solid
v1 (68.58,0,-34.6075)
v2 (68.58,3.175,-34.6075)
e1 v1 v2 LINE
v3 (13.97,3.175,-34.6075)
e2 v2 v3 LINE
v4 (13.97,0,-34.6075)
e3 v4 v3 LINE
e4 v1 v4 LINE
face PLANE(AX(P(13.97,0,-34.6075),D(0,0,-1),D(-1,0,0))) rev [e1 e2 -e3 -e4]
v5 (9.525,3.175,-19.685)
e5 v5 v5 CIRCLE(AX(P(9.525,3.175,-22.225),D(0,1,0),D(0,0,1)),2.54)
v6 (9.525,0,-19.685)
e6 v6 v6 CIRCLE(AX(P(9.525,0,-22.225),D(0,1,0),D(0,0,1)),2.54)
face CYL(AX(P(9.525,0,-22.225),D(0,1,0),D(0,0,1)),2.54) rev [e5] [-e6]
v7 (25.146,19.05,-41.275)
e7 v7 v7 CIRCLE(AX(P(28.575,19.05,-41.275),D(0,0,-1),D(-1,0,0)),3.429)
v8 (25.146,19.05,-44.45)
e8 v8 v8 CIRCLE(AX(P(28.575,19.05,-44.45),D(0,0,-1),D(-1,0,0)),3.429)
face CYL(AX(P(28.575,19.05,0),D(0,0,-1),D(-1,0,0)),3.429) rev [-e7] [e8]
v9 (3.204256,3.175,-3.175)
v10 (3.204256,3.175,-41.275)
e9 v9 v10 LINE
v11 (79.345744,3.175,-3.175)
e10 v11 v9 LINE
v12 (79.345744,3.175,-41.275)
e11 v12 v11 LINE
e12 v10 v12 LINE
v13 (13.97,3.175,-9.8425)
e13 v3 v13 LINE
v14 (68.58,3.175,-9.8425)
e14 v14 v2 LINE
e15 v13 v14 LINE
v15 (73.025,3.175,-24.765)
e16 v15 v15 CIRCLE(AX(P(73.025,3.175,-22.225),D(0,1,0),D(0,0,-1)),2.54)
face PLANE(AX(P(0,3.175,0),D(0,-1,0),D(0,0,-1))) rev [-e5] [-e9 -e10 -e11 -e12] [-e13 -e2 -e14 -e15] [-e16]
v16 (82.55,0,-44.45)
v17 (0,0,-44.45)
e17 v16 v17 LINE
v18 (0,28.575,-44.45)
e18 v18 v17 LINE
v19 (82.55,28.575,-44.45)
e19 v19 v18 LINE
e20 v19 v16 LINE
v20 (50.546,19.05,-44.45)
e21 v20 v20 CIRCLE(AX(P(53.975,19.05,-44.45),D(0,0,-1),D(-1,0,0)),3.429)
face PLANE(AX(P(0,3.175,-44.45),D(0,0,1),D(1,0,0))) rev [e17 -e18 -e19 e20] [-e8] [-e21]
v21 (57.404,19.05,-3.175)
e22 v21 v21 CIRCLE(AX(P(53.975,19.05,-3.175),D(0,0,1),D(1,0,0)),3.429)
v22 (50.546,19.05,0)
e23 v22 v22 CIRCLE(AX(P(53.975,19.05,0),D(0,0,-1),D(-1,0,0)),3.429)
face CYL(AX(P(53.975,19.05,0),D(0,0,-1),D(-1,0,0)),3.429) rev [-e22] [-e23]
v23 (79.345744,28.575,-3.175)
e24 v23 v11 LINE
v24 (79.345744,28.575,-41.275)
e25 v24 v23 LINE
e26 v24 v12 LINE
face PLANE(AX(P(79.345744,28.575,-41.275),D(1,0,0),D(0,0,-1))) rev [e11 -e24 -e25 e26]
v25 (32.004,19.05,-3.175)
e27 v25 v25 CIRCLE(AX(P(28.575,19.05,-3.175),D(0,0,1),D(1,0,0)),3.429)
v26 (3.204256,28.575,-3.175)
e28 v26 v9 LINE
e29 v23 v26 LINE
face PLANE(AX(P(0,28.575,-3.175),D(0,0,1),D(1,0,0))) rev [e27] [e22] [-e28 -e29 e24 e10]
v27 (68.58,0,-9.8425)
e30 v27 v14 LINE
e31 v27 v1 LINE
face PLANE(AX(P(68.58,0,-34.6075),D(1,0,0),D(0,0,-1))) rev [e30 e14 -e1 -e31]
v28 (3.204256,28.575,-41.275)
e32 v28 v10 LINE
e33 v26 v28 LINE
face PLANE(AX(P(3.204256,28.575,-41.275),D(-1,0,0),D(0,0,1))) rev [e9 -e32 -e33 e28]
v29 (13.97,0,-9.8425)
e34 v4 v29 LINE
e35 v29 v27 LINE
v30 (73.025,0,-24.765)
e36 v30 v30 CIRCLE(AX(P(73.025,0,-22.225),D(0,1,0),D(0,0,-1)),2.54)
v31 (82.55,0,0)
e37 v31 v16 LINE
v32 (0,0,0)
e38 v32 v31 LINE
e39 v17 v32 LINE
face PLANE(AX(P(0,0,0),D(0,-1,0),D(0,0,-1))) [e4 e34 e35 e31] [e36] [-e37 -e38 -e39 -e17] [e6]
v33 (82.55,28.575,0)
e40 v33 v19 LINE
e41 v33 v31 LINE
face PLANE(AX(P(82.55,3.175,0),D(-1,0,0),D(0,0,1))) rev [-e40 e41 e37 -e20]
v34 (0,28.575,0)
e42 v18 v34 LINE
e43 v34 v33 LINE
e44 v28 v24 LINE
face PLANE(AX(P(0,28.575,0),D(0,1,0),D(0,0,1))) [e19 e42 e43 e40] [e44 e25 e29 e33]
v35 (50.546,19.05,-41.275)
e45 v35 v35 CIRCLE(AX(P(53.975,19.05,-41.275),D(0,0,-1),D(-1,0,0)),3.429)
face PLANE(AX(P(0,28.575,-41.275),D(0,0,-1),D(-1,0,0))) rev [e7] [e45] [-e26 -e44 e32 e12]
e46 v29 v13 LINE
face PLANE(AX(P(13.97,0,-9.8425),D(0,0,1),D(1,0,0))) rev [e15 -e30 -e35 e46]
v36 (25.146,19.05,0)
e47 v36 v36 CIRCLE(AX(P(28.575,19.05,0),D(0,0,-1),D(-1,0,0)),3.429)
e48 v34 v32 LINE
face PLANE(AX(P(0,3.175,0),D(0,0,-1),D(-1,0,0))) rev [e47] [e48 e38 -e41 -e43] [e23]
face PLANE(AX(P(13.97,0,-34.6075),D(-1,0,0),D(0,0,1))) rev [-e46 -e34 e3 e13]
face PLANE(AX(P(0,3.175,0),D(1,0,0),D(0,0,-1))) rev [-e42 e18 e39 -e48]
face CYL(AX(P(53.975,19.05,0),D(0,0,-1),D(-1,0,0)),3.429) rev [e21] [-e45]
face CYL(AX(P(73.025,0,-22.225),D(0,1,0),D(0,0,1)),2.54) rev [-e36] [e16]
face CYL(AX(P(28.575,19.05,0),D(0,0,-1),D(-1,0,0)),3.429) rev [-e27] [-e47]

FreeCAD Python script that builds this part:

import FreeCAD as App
import Part
import Sketcher
from FreeCAD import Vector
Q = App.Units.Quantity

doc = App.newDocument("Part")
body = doc.addObject("PartDesign::Body", "Body")

# Sketch on XZ plane
sketch1 = body.newObject("Sketcher::SketchObject", "Sketch")
sketch1.AttachmentSupport = (doc.getObject("XZ_Plane"), [""])
sketch1.MapMode = "FlatFace"
sketch1.addGeometry([
    Part.LineSegment(Vector(0, -44, 0), Vector(0, 0, 0)),
    Part.LineSegment(Vector(0, 0, 0), Vector(83, 0, 0)),
    Part.LineSegment(Vector(83, 0, 0), Vector(83, -44, 0)),
    Part.LineSegment(Vector(83, -44, 0), Vector(0, -44, 0)),
], False)
sketch1.addConstraint([
    Sketcher.Constraint("Coincident", 0, 2, 1, 1),
    Sketcher.Constraint("Coincident", 1, 2, 2, 1),
    Sketcher.Constraint("Coincident", 2, 2, 3, 1),
    Sketcher.Constraint("Coincident", 3, 2, 0, 1),
    Sketcher.Constraint("Vertical", 0),
    Sketcher.Constraint("Horizontal", 1),
    Sketcher.Constraint("Vertical", 2),
    Sketcher.Constraint("Horizontal", 3),
    Sketcher.Constraint("Coincident", 0, 2, -1, 1),
    Sketcher.Constraint("DistanceX", 1, 1, 1, 2, Q("3.25 in")),
    Sketcher.Constraint("DistanceY", 0, 1, 0, 2, Q("1.75 in")),
])
pad1 = body.newObject("PartDesign::Pad", "Pad")
pad1.Profile = sketch1
pad1.Length = Q("0.125 in")
pad1.Reversed = True

# Sketch on XZ plane
sketch2 = body.newObject("Sketcher::SketchObject", "Sketch001")
sketch2.AttachmentSupport = (doc.getObject("XZ_Plane"), [""])
sketch2.MapMode = "FlatFace"
sketch2.AttachmentOffset = App.Placement(Vector(0, 0, -0.125 * 25.4), App.Rotation())
sketch2.addGeometry([
    Part.Circle(Vector(9.5, -22.2, 0), Vector(0, 0, 1), 2.5),
    Part.Circle(Vector(73, -22.2, 0), Vector(0, 0, 1), 2.5),
], False)
sketch2.addConstraint([
    Sketcher.Constraint("Equal", 0, 1),
    Sketcher.Constraint("Horizontal", 0, 3, 1, 3),
    Sketcher.Constraint("Diameter", 0, Q("0.2 in")),
    Sketcher.Constraint("DistanceX", 0, 3, 1, 3, Q("2.5 in")),
    Sketcher.Constraint("DistanceX", -1, 1, 0, 3, Q("0.375 in")),
    Sketcher.Constraint("DistanceY", 0, 3, -1, 1, Q("0.875 in")),
])
pocket1 = body.newObject("PartDesign::Pocket", "Pocket")
pocket1.Profile = sketch2
pocket1.Length = Q("0.125 in")
pocket1.Reversed = True

# Sketch on XZ plane
sketch3 = body.newObject("Sketcher::SketchObject", "Sketch002")
sketch3.AttachmentSupport = (doc.getObject("XZ_Plane"), [""])
sketch3.MapMode = "FlatFace"
sketch3.AttachmentOffset = App.Placement(Vector(0, 0, -0.125 * 25.4), App.Rotation())
sketch3.addGeometry([
    Part.LineSegment(Vector(14, -35, 0), Vector(14, -10, 0)),
    Part.LineSegment(Vector(14, -10, 0), Vector(69, -10, 0)),
    Part.LineSegment(Vector(69, -10, 0), Vector(69, -35, 0)),
    Part.LineSegment(Vector(69, -35, 0), Vector(14, -35, 0)),
], False)
sketch3.addConstraint([
    Sketcher.Constraint("Coincident", 0, 2, 1, 1),
    Sketcher.Constraint("Coincident", 1, 2, 2, 1),
    Sketcher.Constraint("Coincident", 2, 2, 3, 1),
    Sketcher.Constraint("Coincident", 3, 2, 0, 1),
    Sketcher.Constraint("Vertical", 0),
    Sketcher.Constraint("Horizontal", 1),
    Sketcher.Constraint("Vertical", 2),
    Sketcher.Constraint("Horizontal", 3),
    Sketcher.Constraint("DistanceX", 1, 1, 1, 2, Q("2.15 in")),
    Sketcher.Constraint("DistanceX", -1, 1, 1, 2, Q("2.7 in")),
    Sketcher.Constraint("DistanceY", 0, 1, 0, 2, Q("0.975 in")),
    Sketcher.Constraint("DistanceY", 0, 2, -1, 1, Q("0.3875 in")),
])
pocket2 = body.newObject("PartDesign::Pocket", "Pocket001")
pocket2.Profile = sketch3
pocket2.Length = Q("0.125 in")
pocket2.Reversed = True

# Sketch on XZ plane
sketch4 = body.newObject("Sketcher::SketchObject", "Sketch003")
sketch4.AttachmentSupport = (doc.getObject("XZ_Plane"), [""])
sketch4.MapMode = "FlatFace"
sketch4.AttachmentOffset = App.Placement(Vector(0, 0, -0.125 * 25.4), App.Rotation())
sketch4.addGeometry([
    Part.LineSegment(Vector(0, -44.5, 0), Vector(0, -41.3, 0)),  # 0
    Part.LineSegment(Vector(0, -41.3, 0), Vector(82.5, -41.3, 0)),  # 1
    Part.LineSegment(Vector(82.5, -41.3, 0), Vector(82.5, -44.5, 0)),  # 2
    Part.LineSegment(Vector(82.5, -44.5, 0), Vector(0, -44.5, 0)),  # 3
    Part.LineSegment(Vector(0, -3.2, 0), Vector(0, 0, 0)),  # 4
    Part.LineSegment(Vector(0, 0, 0), Vector(82.5, 0, 0)),  # 5
    Part.LineSegment(Vector(82.5, 0, 0), Vector(82.5, -3.2, 0)),  # 6
    Part.LineSegment(Vector(82.5, -3.2, 0), Vector(0, -3.2, 0)),  # 7
], False)
sketch4.addConstraint([
    Sketcher.Constraint("Coincident", 0, 2, 1, 1),
    Sketcher.Constraint("Coincident", 1, 2, 2, 1),
    Sketcher.Constraint("Coincident", 2, 2, 3, 1),
    Sketcher.Constraint("Coincident", 3, 2, 0, 1),
    Sketcher.Constraint("Coincident", 4, 2, 5, 1),
    Sketcher.Constraint("Coincident", 5, 2, 6, 1),
    Sketcher.Constraint("Coincident", 6, 2, 7, 1),
    Sketcher.Constraint("Coincident", 7, 2, 4, 1),
    Sketcher.Constraint("Vertical", 0),
    Sketcher.Constraint("Horizontal", 1),
    Sketcher.Constraint("Vertical", 2),
    Sketcher.Constraint("Horizontal", 3),
    Sketcher.Constraint("Vertical", 4),
    Sketcher.Constraint("Horizontal", 5),
    Sketcher.Constraint("Vertical", 6),
    Sketcher.Constraint("Horizontal", 7),
    Sketcher.Constraint("Coincident", 4, 2, -1, 1),
    Sketcher.Constraint("PointOnObject", 0, 2, -2),
    Sketcher.Constraint("Vertical", 2, 2, 5, 2),
    Sketcher.Constraint("Equal", 2, 4),
    Sketcher.Constraint("DistanceX", 1, 1, 1, 2, Q("3.25 in")),
    Sketcher.Constraint("DistanceY", 1, 2, 6, 2, Q("1.5 in")),
    Sketcher.Constraint("DistanceY", 0, 1, 0, 2, Q("0.125 in")),
])
pad2 = body.newObject("PartDesign::Pad", "Pad001")
pad2.Profile = sketch4
pad2.Length = Q("1 in")
pad2.Reversed = True

# Sketch on XZ plane
sketch5 = body.newObject("Sketcher::SketchObject", "Sketch004")
sketch5.AttachmentSupport = (doc.getObject("XZ_Plane"), [""])
sketch5.MapMode = "FlatFace"
sketch5.AttachmentOffset = App.Placement(Vector(0, 0, -0.125 * 25.4), App.Rotation())
sketch5.addGeometry([
    Part.LineSegment(Vector(0, -41.3, 0), Vector(0, -3.2, 0)),  # 0
    Part.LineSegment(Vector(0, -3.2, 0), Vector(3.2, -3.2, 0)),  # 1
    Part.LineSegment(Vector(3.2, -3.2, 0), Vector(3.2, -41.3, 0)),  # 2
    Part.LineSegment(Vector(3.2, -41.3, 0), Vector(0, -41.3, 0)),  # 3
    Part.LineSegment(Vector(79.3, -41.3, 0), Vector(79.3, -3.2, 0)),  # 4
    Part.LineSegment(Vector(79.3, -3.2, 0), Vector(82.6, -3.2, 0)),  # 5
    Part.LineSegment(Vector(82.6, -3.2, 0), Vector(82.6, -41.3, 0)),  # 6
    Part.LineSegment(Vector(82.6, -41.3, 0), Vector(79.3, -41.3, 0)),  # 7
], False)
sketch5.addConstraint([
    Sketcher.Constraint("Coincident", 0, 2, 1, 1),
    Sketcher.Constraint("Coincident", 1, 2, 2, 1),
    Sketcher.Constraint("Coincident", 2, 2, 3, 1),
    Sketcher.Constraint("Coincident", 3, 2, 0, 1),
    Sketcher.Constraint("Coincident", 4, 2, 5, 1),
    Sketcher.Constraint("Coincident", 5, 2, 6, 1),
    Sketcher.Constraint("Coincident", 6, 2, 7, 1),
    Sketcher.Constraint("Coincident", 7, 2, 4, 1),
    Sketcher.Constraint("Vertical", 0),
    Sketcher.Constraint("Horizontal", 1),
    Sketcher.Constraint("Vertical", 2),
    Sketcher.Constraint("Horizontal", 3),
    Sketcher.Constraint("Vertical", 4),
    Sketcher.Constraint("Horizontal", 5),
    Sketcher.Constraint("Vertical", 6),
    Sketcher.Constraint("Horizontal", 7),
    Sketcher.Constraint("PointOnObject", 0, 2, -2),
    Sketcher.Constraint("Horizontal", 1, 2, 4, 2),
    Sketcher.Constraint("Horizontal", 3, 2, 6, 2),
    Sketcher.Constraint("Equal", 3, 5),
    Sketcher.Constraint("DistanceY", 0, 1, 0, 2, Q("1.5 in")),
    Sketcher.Constraint("DistanceX", -1, 1, 5, 2, Q("3.25 in")),
    Sketcher.Constraint("DistanceY", 0, 2, -1, 1, Q("0.125 in")),
    Sketcher.Constraint("DistanceX", 1, 1, 1, 2, Q("3.204256 mm")),
])
pad3 = body.newObject("PartDesign::Pad", "Pad002")
pad3.Profile = sketch5
pad3.Length = Q("1 in")
pad3.Reversed = True

# Sketch on XY plane
sketch6 = body.newObject("Sketcher::SketchObject", "Sketch005")
sketch6.AttachmentSupport = (doc.getObject("XY_Plane"), [""])
sketch6.MapMode = "FlatFace"
sketch6.AttachmentOffset = App.Placement(Vector(0, 0, -1.75 * 25.4), App.Rotation())
sketch6.addGeometry([
    Part.Circle(Vector(28.6, 19.1, 0), Vector(0, 0, 1), 3.4),
    Part.Circle(Vector(54, 19.1, 0), Vector(0, 0, 1), 3.4),
], False)
sketch6.addConstraint([
    Sketcher.Constraint("Equal", 0, 1),
    Sketcher.Constraint("Horizontal", 0, 3, 1, 3),
    Sketcher.Constraint("Diameter", 0, Q("0.27 in")),
    Sketcher.Constraint("DistanceX", 0, 3, 1, 3, Q("1 in")),
    Sketcher.Constraint("DistanceY", -1, 1, 0, 3, Q("0.75 in")),
    Sketcher.Constraint("DistanceX", -1, 1, 0, 3, Q("1.125 in")),
])
pocket3 = body.newObject("PartDesign::Pocket", "Pocket002")
pocket3.Profile = sketch6
pocket3.Type = "ThroughAll"
pocket3.Reversed = True

doc.recompute()
